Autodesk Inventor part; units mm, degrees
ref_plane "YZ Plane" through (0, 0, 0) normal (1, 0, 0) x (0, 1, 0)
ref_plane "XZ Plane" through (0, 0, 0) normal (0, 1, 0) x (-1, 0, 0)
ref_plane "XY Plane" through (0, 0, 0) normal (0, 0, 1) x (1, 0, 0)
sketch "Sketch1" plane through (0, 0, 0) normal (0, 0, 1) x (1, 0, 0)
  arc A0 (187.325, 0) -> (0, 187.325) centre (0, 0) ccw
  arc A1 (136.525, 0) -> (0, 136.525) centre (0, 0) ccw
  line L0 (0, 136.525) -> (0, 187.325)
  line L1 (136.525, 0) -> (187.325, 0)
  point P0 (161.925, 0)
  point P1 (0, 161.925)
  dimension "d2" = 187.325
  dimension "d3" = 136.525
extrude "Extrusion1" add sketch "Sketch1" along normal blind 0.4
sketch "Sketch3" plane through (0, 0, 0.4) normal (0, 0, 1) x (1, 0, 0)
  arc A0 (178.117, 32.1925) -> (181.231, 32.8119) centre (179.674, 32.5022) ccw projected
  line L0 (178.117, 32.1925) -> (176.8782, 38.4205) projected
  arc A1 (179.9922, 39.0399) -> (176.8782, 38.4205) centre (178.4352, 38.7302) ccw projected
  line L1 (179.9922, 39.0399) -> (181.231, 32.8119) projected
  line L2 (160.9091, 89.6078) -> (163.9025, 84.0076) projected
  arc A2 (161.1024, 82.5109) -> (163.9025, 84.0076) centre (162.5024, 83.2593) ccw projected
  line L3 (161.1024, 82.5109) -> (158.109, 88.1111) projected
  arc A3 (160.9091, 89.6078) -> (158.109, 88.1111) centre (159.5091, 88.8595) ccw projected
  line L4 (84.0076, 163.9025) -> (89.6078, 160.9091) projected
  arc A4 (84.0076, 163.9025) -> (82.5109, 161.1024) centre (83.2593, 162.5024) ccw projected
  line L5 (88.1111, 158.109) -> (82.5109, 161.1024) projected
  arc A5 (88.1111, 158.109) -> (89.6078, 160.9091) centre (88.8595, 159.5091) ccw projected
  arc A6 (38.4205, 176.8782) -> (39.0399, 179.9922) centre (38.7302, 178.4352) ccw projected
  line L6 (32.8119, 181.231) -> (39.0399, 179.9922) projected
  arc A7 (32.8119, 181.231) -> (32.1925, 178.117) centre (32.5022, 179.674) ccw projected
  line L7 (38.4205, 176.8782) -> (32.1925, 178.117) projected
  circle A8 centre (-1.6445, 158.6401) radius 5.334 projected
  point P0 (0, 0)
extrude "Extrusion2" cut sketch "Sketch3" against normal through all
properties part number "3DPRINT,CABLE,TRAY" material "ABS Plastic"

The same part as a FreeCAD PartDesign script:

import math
import FreeCAD as App
import Part
import Sketcher

V = App.Vector
Q = App.Units.Quantity

doc = App.newDocument("Part")
body = doc.addObject("PartDesign::Body", "Body")

sketch1 = body.newObject("Sketcher::SketchObject", "Sketch")
sketch1.AttachmentSupport = (doc.getObject("XY_Plane"), [""])
sketch1.MapMode = "FlatFace"
sketch1.addGeometry([
    Part.LineSegment(V(137, 0, 0), V(187, 0, 0)),
    Part.ArcOfCircle(Part.Circle(V(0, 0, 0), V(0, 0, 1), 187), math.radians(0), math.radians(90)),
    Part.LineSegment(V(0, 187, 0), V(0, 137, 0)),
    Part.ArcOfCircle(Part.Circle(V(0, 0, 0), V(0, 0, 1), 137), math.radians(0), math.radians(90)),
], False)
sketch1.addConstraint([
    Sketcher.Constraint("Coincident", 0, 2, 1, 1),
    Sketcher.Constraint("Coincident", 1, 2, 2, 1),
    Sketcher.Constraint("Coincident", 2, 2, 3, 2),
    Sketcher.Constraint("Coincident", 3, 1, 0, 1),
    Sketcher.Constraint("Horizontal", 0),
    Sketcher.Constraint("Vertical", 2),
    Sketcher.Constraint("Coincident", 1, 3, -1, 1),
    Sketcher.Constraint("Coincident", 3, 3, -1, 1),
    Sketcher.Constraint("PointOnObject", 0, 2, -1),
    Sketcher.Constraint("PointOnObject", 1, 2, -2),
    Sketcher.Constraint("Radius", 1, Q("7.375 in")),
    Sketcher.Constraint("Radius", 3, Q("5.375 in")),
])
pad1 = body.newObject("PartDesign::Pad", "Pad")
pad1.Profile = sketch1
pad1.Length = 0.4

sketch2 = body.newObject("Sketcher::SketchObject", "Sketch001")
sketch2.AttachmentSupport = (doc.getObject("XY_Plane"), [""])
sketch2.MapMode = "FlatFace"
sketch2.AttachmentOffset = App.Placement(V(0, 0, 0.4), App.Rotation())
sketch2.addGeometry([
    Part.LineSegment(V(176.8782, 38.4205, 0), V(178.117, 32.1925, 0)),
    Part.ArcOfCircle(Part.Circle(V(179.674, 32.5022, 0), V(0, 0, 1), 1.587502), math.radians(-168.750232), math.radians(11.249768)),
    Part.LineSegment(V(181.231, 32.8119, 0), V(179.9922, 39.0399, 0)),
    Part.ArcOfCircle(Part.Circle(V(178.4352, 38.7302, 0), V(0, 0, 1), 1.587502), math.radians(11.249768), math.radians(191.249768)),
    Part.LineSegment(V(163.9025, 84.0076, 0), V(160.9091, 89.6078, 0)),
    Part.ArcOfCircle(Part.Circle(V(159.5091, 88.8595, 0), V(0, 0, 1), 1.587436), math.radians(28.124504), math.radians(208.125985)),
    Part.LineSegment(V(158.109, 88.1111, 0), V(161.1024, 82.5109, 0)),
    Part.ArcOfCircle(Part.Circle(V(162.5024, 83.2593, 0), V(0, 0, 1), 1.587483), math.radians(-151.872313), math.radians(28.122802)),
    Part.LineSegment(V(89.6078, 160.9091, 0), V(84.0076, 163.9025, 0)),
    Part.ArcOfCircle(Part.Circle(V(83.2593, 162.5024, 0), V(0, 0, 1), 1.587524), math.radians(61.877198), math.radians(241.872313)),
    Part.LineSegment(V(82.5109, 161.1024, 0), V(88.1111, 158.109, 0)),
    Part.ArcOfCircle(Part.Circle(V(88.8595, 159.5091, 0), V(0, 0, 1), 1.587571), math.radians(-118.125985), math.radians(61.875496)),
    Part.LineSegment(V(32.1925, 178.117, 0), V(38.4205, 176.8782, 0)),
    Part.ArcOfCircle(Part.Circle(V(38.7302, 178.4352, 0), V(0, 0, 1), 1.587502), math.radians(-101.249768), math.radians(78.750232)),
    Part.LineSegment(V(39.0399, 179.9922, 0), V(32.8119, 181.231, 0)),
    Part.ArcOfCircle(Part.Circle(V(32.5022, 179.674, 0), V(0, 0, 1), 1.587502), math.radians(78.750232), math.radians(258.750232)),
    Part.Circle(V(-1.6445, 158.6401, 0), V(0, 0, 1), 5.334),
], False)
sketch2.addConstraint([
    Sketcher.Constraint("Coincident", 0, 2, 1, 1),
    Sketcher.Constraint("Coincident", 1, 2, 2, 1),
    Sketcher.Constraint("Coincident", 2, 2, 3, 1),
    Sketcher.Constraint("Coincident", 3, 2, 0, 1),
    Sketcher.Constraint("Coincident", 4, 2, 5, 1),
    Sketcher.Constraint("Coincident", 5, 2, 6, 1),
    Sketcher.Constraint("Coincident", 6, 2, 7, 1),
    Sketcher.Constraint("Coincident", 7, 2, 4, 1),
    Sketcher.Constraint("Coincident", 8, 2, 9, 1),
    Sketcher.Constraint("Coincident", 9, 2, 10, 1),
    Sketcher.Constraint("Coincident", 10, 2, 11, 1),
    Sketcher.Constraint("Coincident", 11, 2, 8, 1),
    Sketcher.Constraint("Coincident", 12, 2, 13, 1),
    Sketcher.Constraint("Coincident", 13, 2, 14, 1),
    Sketcher.Constraint("Coincident", 14, 2, 15, 1),
    Sketcher.Constraint("Coincident", 15, 2, 12, 1),
    Sketcher.Constraint("Diameter", 16, Q("0.42 in")),
    Sketcher.Constraint("Radius", 1, Q("0.0625 in")),
    Sketcher.Constraint("Radius", 3, Q("0.0625 in")),
    Sketcher.Constraint("Radius", 5, Q("0.0625 in")),
    Sketcher.Constraint("Radius", 7, Q("0.0625 in")),
    Sketcher.Constraint("Radius", 9, Q("0.0625 in")),
    Sketcher.Constraint("Radius", 11, Q("0.0625 in")),
    Sketcher.Constraint("Radius", 13, Q("0.0625 in")),
    Sketcher.Constraint("Radius", 15, Q("0.0625 in")),
    Sketcher.Constraint("Distance", 0, Q("0.25 in")),
    Sketcher.Constraint("Distance", 2, Q("0.25 in")),
    Sketcher.Constraint("Distance", 4, Q("0.25 in")),
    Sketcher.Constraint("Distance", 6, Q("0.25 in")),
    Sketcher.Constraint("Distance", 8, Q("0.25 in")),
    Sketcher.Constraint("Distance", 10, Q("0.25 in")),
    Sketcher.Constraint("Distance", 12, Q("0.25 in")),
    Sketcher.Constraint("Distance", 14, Q("0.25 in")),
    Sketcher.Constraint("DistanceX", 4, 2, 3, 3, Q("0.69 in")),
    Sketcher.Constraint("DistanceX", -1, 1, 3, 3, Q("7.025 in")),
    Sketcher.Constraint("DistanceY", -1, 1, 13, 3, Q("7.025 in")),
    Sketcher.Constraint("DistanceY", -1, 1, 2, 2, Q("1.537 in")),
    Sketcher.Constraint("DistanceY", -1, 1, 11, 2, Q("6.335 in")),
    Sketcher.Constraint("DistanceX", -1, 1, 13, 2, Q("1.537 in")),
    Sketcher.Constraint("DistanceY", 1, 2, 3, 3, Q("0.233 in")),
    Sketcher.Constraint("DistanceY", 1, 3, 3, 2, Q("0.233 in")),
    Sketcher.Constraint("DistanceX", 15, 3, 12, 2, Q("0.233 in")),
    Sketcher.Constraint("DistanceX", 14, 2, 13, 3, Q("0.233 in")),
    Sketcher.Constraint("DistanceY", -1, 1, 3, 3, Q("1.5248 in")),
    Sketcher.Constraint("DistanceY", -1, 1, 5, 3, Q("3.4984 in")),
    Sketcher.Constraint("DistanceX", -1, 1, 11, 3, Q("3.4984 in")),
    Sketcher.Constraint("DistanceX", -1, 1, 13, 3, Q("1.5248 in")),
    Sketcher.Constraint("DistanceX", -1, 1, 3, 2, Q("6.9637 in")),
    Sketcher.Constraint("DistanceY", -1, 1, 12, 2, Q("6.9637 in")),
    Sketcher.Constraint("DistanceX", 5, 3, 1, 3, Q("0.7939 in")),
    Sketcher.Constraint("DistanceY", 1, 3, 7, 3, Q("1.9983 in")),
    Sketcher.Constraint("DistanceX", 9, 3, 7, 3, Q("3.1198 in")),
    Sketcher.Constraint("DistanceY", 7, 3, 9, 3, Q("3.1198 in")),
    Sketcher.Constraint("DistanceX", 15, 3, 9, 3, Q("1.9983 in")),
    Sketcher.Constraint("DistanceY", 11, 3, 15, 3, Q("0.7939 in")),
    Sketcher.Constraint("DistanceY", 16, 3, 15, 3, Q("0.8281 in")),
    Sketcher.Constraint("DistanceX", 4, 2, 6, 2, Q("0.0076 in")),
    Sketcher.Constraint("DistanceY", 9, 2, 13, 3, Q("0.6824 in")),
    Sketcher.Constraint("DistanceX", 16, 3, -1, 1, 1.6445),
])
pocket1 = body.newObject("PartDesign::Pocket", "Pocket")
pocket1.Profile = sketch2
pocket1.Type = "ThroughAll"

doc.recompute()
